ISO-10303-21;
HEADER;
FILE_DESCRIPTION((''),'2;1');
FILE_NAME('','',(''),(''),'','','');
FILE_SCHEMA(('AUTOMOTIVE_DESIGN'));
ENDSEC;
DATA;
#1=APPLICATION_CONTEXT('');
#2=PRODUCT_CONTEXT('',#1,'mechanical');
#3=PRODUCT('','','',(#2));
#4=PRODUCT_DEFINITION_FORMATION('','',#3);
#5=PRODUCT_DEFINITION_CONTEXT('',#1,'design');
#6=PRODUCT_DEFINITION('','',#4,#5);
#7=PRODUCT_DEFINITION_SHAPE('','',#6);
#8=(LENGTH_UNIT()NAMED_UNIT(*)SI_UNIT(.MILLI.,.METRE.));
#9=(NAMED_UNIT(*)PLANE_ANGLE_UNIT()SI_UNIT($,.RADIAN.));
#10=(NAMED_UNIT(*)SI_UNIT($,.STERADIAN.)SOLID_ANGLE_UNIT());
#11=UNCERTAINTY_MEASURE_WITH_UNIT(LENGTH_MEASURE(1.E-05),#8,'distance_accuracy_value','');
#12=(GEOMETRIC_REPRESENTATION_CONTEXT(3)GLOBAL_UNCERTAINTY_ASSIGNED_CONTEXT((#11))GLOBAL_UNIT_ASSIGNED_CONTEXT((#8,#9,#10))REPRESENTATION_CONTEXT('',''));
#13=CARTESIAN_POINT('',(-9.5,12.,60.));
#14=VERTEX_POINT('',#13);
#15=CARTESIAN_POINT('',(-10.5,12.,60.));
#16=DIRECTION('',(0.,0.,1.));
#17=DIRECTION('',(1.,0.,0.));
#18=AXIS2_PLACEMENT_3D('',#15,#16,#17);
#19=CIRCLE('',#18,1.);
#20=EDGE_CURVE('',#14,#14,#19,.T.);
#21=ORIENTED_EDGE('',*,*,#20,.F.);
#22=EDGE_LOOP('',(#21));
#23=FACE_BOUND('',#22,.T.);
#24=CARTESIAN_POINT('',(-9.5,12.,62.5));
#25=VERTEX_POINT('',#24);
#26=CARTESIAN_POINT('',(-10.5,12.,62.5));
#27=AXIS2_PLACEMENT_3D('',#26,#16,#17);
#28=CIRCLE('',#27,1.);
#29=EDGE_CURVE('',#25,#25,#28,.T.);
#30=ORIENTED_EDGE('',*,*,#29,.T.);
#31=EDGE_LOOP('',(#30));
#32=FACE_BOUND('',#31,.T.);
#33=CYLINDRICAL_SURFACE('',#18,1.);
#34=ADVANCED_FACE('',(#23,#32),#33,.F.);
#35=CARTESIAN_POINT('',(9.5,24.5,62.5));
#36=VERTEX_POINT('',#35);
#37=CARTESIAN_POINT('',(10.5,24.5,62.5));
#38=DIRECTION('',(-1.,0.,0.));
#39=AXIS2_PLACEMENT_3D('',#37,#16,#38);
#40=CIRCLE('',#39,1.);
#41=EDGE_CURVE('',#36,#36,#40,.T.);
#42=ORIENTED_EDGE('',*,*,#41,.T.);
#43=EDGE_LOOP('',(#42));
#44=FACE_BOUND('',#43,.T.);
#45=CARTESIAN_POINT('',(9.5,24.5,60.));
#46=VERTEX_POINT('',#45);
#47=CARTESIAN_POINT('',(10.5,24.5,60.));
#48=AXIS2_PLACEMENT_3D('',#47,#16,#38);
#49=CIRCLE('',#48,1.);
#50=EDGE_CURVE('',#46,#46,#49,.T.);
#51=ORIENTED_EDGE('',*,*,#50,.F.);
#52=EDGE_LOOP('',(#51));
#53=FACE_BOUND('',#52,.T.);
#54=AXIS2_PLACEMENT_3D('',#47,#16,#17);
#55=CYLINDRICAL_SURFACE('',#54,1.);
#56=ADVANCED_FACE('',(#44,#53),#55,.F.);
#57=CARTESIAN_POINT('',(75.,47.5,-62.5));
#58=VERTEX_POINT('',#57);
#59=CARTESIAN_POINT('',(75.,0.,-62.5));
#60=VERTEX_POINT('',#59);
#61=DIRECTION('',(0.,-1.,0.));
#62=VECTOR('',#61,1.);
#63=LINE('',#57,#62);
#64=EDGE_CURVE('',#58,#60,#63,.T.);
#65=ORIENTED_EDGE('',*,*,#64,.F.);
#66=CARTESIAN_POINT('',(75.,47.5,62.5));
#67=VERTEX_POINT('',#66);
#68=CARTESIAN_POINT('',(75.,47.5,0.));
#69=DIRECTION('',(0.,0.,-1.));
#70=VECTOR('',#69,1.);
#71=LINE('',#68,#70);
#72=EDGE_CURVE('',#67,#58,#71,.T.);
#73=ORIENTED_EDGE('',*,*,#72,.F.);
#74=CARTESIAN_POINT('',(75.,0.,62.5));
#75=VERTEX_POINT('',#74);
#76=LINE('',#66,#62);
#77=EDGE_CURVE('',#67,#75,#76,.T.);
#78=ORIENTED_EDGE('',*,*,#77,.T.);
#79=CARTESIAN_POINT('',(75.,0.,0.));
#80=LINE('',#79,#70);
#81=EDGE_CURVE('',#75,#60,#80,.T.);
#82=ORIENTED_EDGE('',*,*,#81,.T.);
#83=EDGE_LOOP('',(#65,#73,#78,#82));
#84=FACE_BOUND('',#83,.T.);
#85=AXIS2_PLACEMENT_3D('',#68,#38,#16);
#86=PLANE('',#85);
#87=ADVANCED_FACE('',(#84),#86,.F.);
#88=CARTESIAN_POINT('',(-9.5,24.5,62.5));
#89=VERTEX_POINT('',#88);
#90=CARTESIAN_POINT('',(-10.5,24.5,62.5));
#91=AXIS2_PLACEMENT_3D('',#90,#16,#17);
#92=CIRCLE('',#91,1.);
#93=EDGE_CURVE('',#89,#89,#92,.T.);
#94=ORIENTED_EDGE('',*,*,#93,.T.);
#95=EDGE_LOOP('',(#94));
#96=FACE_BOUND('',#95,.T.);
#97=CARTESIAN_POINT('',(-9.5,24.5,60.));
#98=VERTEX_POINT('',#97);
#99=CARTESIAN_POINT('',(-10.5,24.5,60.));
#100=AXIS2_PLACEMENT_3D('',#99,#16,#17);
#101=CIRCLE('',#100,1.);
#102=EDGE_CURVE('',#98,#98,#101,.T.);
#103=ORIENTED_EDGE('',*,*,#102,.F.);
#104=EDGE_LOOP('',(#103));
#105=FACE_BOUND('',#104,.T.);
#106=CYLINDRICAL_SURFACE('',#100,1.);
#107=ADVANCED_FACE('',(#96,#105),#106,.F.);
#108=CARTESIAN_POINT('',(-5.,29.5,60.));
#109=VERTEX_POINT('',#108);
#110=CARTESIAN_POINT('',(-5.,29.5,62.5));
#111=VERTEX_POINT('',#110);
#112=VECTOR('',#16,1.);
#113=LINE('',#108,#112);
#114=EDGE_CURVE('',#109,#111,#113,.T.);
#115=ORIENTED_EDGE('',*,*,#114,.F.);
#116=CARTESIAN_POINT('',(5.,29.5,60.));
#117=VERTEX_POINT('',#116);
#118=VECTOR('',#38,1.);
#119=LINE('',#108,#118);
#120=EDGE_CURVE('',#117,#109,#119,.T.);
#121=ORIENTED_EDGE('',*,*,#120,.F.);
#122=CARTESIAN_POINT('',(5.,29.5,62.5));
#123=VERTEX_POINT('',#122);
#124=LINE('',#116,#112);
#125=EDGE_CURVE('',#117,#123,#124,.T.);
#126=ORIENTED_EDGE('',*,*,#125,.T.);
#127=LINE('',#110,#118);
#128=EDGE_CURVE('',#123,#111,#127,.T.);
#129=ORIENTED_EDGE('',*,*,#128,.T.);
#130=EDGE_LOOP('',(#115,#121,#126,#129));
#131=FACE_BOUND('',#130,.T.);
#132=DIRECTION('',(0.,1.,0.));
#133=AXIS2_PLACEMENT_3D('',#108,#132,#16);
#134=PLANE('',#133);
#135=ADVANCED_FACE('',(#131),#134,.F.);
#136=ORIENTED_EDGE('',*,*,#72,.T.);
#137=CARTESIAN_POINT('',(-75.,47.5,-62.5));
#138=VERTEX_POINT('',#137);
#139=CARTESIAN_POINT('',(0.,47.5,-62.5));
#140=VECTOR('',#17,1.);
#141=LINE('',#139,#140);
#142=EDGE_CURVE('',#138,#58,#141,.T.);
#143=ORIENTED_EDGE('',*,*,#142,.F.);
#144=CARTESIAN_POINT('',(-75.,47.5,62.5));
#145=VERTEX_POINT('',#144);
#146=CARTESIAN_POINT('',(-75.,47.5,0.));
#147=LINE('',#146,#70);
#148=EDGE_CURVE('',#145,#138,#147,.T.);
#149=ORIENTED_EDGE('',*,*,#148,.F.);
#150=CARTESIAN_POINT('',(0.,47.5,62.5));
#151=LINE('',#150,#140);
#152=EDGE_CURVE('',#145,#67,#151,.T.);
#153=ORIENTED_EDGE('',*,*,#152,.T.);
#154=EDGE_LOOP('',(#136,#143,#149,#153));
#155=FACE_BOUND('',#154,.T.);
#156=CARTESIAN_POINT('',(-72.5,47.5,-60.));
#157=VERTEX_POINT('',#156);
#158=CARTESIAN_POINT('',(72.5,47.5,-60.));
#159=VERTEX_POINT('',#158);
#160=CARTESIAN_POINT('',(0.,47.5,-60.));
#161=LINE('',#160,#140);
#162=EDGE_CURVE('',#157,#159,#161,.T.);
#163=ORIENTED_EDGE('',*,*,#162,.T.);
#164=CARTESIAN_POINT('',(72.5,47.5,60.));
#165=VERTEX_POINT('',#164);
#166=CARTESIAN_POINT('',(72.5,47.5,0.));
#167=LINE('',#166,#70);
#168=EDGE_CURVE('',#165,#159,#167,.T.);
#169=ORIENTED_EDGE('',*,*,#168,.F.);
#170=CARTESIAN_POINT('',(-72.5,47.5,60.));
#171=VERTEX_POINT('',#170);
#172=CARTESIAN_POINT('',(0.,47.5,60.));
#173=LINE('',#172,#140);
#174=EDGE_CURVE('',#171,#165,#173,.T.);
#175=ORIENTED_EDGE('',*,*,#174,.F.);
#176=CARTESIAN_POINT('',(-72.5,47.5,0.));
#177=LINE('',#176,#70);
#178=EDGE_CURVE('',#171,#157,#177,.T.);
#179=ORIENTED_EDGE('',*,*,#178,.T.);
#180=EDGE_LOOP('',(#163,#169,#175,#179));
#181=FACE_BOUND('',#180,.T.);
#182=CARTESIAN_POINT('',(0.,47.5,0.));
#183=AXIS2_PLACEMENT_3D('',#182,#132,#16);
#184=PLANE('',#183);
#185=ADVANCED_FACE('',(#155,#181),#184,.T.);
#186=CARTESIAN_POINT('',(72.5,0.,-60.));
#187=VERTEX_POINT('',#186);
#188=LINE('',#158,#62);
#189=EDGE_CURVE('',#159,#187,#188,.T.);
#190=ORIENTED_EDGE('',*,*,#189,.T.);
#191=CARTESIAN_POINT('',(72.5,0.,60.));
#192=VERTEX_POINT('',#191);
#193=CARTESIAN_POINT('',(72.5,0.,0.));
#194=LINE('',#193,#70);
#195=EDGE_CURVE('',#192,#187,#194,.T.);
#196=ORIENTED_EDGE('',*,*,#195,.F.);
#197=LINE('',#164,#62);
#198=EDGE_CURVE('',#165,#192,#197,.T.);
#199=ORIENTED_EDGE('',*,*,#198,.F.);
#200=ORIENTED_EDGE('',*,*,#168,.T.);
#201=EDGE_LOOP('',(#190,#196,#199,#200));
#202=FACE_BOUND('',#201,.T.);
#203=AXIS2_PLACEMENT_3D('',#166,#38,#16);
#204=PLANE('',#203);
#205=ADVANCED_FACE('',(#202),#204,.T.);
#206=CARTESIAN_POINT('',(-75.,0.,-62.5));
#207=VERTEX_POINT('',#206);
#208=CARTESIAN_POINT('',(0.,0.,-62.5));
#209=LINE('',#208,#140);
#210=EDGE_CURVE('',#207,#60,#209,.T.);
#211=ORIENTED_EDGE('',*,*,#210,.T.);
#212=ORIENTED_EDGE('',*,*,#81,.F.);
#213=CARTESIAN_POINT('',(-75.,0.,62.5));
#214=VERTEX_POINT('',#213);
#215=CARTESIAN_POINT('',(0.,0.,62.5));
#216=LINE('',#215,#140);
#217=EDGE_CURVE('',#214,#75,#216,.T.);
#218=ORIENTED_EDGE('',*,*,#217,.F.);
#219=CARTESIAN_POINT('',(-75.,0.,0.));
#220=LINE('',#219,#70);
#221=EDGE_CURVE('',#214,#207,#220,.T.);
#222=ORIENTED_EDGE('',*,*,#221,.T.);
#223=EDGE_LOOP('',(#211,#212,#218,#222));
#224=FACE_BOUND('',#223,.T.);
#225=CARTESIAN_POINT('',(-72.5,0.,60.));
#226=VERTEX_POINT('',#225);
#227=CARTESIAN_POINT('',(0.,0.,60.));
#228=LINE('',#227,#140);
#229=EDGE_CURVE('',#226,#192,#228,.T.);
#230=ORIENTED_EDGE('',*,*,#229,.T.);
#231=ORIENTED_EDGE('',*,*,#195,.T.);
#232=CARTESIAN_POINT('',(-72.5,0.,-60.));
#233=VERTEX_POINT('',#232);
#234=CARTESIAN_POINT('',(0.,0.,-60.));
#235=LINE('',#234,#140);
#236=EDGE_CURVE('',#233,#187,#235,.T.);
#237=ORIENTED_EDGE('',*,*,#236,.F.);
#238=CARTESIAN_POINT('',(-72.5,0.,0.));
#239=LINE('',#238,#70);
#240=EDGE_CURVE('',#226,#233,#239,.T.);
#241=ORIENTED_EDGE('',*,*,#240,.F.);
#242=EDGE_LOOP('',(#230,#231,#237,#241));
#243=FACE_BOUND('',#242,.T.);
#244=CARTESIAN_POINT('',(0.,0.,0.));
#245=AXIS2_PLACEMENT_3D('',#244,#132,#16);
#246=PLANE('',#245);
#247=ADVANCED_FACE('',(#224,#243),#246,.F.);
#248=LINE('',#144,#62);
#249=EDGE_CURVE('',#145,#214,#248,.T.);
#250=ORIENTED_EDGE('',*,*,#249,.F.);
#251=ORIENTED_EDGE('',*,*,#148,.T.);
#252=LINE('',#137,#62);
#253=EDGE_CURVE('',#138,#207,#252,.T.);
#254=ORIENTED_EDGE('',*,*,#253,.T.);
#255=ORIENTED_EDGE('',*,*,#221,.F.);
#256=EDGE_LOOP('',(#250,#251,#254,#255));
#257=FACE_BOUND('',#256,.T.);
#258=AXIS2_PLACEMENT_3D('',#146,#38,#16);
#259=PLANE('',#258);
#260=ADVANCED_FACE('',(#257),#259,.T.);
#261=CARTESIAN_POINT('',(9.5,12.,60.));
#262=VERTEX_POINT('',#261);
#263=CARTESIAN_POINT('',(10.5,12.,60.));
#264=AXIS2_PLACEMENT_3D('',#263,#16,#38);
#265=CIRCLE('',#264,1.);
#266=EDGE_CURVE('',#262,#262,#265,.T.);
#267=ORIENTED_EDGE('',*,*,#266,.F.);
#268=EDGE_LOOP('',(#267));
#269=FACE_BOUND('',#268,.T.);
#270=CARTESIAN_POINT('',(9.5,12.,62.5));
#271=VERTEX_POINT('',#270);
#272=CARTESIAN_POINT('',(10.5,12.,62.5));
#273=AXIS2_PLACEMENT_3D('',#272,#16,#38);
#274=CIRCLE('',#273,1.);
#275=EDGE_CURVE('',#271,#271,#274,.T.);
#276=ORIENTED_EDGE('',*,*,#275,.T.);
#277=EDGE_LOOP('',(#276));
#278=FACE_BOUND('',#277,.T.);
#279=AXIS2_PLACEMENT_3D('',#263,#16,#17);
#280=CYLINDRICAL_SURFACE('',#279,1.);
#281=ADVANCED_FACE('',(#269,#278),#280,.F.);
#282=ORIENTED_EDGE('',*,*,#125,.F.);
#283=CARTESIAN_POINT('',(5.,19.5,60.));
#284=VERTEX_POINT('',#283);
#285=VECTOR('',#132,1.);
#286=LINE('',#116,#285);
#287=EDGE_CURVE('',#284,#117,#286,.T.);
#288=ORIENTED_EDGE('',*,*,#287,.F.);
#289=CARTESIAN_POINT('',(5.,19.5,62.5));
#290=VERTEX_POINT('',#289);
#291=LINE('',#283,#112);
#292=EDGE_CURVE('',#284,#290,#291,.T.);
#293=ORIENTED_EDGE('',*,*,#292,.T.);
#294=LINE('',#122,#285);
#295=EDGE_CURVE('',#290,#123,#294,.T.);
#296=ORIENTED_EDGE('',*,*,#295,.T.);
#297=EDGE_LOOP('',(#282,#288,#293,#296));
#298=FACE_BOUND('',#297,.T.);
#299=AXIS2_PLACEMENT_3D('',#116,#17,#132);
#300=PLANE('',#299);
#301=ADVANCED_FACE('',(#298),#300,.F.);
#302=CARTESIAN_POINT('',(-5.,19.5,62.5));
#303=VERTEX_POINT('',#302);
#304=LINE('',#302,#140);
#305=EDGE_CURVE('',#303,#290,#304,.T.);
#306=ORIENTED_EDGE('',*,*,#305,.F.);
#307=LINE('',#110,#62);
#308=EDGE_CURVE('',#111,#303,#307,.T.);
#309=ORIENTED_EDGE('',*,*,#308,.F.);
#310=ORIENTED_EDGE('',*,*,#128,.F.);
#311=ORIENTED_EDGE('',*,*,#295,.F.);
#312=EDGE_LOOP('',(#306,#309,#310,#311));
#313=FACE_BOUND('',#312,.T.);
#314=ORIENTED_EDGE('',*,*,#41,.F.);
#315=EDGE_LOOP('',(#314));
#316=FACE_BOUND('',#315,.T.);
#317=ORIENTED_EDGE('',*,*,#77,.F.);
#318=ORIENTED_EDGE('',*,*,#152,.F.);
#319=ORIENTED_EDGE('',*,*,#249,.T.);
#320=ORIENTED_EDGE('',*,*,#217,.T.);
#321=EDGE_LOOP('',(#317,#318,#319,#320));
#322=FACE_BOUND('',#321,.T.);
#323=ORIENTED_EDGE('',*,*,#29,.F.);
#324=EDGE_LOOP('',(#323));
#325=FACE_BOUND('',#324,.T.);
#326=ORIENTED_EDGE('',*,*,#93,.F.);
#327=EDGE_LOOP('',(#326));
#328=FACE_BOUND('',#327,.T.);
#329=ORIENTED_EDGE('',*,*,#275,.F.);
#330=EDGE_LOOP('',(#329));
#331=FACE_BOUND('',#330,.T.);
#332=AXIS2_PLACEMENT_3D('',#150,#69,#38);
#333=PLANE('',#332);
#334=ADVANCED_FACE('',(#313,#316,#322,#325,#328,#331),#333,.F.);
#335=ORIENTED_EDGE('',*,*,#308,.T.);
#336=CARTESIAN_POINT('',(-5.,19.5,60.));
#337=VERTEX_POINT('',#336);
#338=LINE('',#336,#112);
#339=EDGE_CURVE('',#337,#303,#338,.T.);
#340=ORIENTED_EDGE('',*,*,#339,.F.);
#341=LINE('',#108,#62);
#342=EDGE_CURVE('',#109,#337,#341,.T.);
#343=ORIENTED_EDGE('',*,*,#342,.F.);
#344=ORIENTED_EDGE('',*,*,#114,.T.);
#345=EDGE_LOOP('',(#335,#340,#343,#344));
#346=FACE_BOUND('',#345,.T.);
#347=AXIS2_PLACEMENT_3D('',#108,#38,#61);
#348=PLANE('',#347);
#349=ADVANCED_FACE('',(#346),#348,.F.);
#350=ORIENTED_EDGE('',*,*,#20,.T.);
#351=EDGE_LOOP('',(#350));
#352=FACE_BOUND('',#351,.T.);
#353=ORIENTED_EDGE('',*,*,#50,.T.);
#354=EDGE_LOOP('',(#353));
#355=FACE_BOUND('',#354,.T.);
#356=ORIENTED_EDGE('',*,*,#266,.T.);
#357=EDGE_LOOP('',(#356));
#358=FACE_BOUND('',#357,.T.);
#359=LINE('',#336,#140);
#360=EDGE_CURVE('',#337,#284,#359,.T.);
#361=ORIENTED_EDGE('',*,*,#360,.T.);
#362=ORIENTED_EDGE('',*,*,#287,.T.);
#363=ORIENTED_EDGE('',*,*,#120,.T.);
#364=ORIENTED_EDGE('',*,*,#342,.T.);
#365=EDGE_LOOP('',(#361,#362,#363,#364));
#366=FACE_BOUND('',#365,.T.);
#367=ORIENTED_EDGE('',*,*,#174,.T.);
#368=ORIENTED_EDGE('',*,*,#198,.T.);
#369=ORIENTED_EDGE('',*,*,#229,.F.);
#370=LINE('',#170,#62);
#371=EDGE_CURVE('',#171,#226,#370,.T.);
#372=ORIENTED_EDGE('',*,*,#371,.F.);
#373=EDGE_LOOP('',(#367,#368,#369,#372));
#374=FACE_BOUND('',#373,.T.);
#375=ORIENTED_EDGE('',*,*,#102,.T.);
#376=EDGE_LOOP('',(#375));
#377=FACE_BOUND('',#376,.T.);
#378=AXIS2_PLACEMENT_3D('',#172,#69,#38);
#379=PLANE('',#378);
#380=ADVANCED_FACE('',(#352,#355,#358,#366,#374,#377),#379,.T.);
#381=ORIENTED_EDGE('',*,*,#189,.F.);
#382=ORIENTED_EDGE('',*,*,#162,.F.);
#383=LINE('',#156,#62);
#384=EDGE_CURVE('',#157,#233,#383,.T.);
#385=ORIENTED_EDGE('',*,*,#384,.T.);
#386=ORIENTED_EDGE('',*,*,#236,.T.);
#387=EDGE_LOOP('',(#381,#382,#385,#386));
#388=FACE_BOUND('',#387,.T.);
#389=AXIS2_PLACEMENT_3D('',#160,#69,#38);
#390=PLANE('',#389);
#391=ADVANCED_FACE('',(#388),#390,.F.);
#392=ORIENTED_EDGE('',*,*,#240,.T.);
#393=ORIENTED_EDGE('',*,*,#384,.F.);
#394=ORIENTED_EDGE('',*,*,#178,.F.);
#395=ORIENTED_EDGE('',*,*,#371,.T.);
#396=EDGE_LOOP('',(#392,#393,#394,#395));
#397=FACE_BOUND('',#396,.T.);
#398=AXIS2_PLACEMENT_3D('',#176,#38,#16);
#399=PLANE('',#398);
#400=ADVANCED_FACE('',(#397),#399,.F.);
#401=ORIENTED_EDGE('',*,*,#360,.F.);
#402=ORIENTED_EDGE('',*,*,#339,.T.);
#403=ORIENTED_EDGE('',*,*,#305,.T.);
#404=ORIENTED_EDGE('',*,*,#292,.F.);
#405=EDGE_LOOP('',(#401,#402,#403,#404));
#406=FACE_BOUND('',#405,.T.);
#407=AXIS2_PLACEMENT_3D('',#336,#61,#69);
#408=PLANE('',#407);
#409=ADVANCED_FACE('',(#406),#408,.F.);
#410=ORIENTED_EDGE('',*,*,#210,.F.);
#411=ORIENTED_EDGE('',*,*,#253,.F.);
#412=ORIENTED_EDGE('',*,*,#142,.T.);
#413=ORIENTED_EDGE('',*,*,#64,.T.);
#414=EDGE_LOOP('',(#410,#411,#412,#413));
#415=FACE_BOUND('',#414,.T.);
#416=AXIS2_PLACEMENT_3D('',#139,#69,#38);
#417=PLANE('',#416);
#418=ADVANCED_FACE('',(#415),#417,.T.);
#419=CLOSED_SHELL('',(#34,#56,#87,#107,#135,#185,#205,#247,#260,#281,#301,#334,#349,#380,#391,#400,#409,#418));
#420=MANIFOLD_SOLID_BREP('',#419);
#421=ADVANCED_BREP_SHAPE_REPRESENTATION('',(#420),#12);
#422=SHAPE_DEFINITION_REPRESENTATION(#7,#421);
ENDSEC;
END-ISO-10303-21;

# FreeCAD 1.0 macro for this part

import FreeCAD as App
import Part
import Sketcher
from FreeCAD import Vector


def faces_at(feature, points):
    """Names of the faces that lie closest to the given points."""
    faces = feature.Shape.Faces
    near = lambda p: min(range(len(faces)), key=lambda i: faces[i].distToShape(Part.Vertex(*p))[0])
    return sorted({f"Face{near(p) + 1}" for p in points})

doc = App.newDocument("Part")
params = doc.addObject("Spreadsheet::Sheet", "Params")
for row, (alias, value) in enumerate([
    ("sketch1_width", "150 mm"),
    ("sketch1_height", "125 mm"),
    ("pad1_length", "47.5 mm"),
    ("thickness_wall", "2.5 mm"),
    ("sketch2_diameter", "2 mm"),
    ("sketch2_width", "10 mm"),
    ("pocket1_length", "2.5 mm"),
], start=1):
    params.set(f"A{row}", alias)
    params.set(f"B{row}", "=" + value)
    params.setAlias(f"B{row}", alias)

body = doc.addObject("PartDesign::Body", "Body")

sketch1 = body.newObject("Sketcher::SketchObject", "Sketch")
sketch1.AttachmentSupport = (doc.getObject("XZ_Plane"), [""])
sketch1.MapMode = "FlatFace"
sketch1.addGeometry([
    Part.LineSegment(Vector(-75, -62, 0), Vector(-75, 62, 0)),
    Part.LineSegment(Vector(-75, 62, 0), Vector(75, 62, 0)),
    Part.LineSegment(Vector(75, 62, 0), Vector(75, -62, 0)),
    Part.LineSegment(Vector(75, -62, 0), Vector(-75, -62, 0)),
], False)
sketch1.addConstraint([
    Sketcher.Constraint("Coincident", 0, 2, 1, 1),
    Sketcher.Constraint("Coincident", 1, 2, 2, 1),
    Sketcher.Constraint("Coincident", 2, 2, 3, 1),
    Sketcher.Constraint("Coincident", 3, 2, 0, 1),
    Sketcher.Constraint("Vertical", 0),
    Sketcher.Constraint("Horizontal", 1),
    Sketcher.Constraint("Vertical", 2),
    Sketcher.Constraint("Horizontal", 3),
    Sketcher.Constraint("Symmetric", 0, 2, 2, 2, -1, 1),
    Sketcher.Constraint("DistanceX", 1, 1, 1, 2, 150.0),
    Sketcher.Constraint("DistanceY", 0, 1, 0, 2, 125.0),
])
sketch1.setExpression("Constraints[9]", "Params.sketch1_width")
sketch1.setExpression("Constraints[10]", "Params.sketch1_height")
pad1 = body.newObject("PartDesign::Pad", "Pad")
pad1.Profile = sketch1
pad1.setExpression("Length", "Params.pad1_length")
pad1.Reversed = True
doc.recompute()

thickness = body.newObject("PartDesign::Thickness", "Thickness")
thickness.Base = (pad1, faces_at(pad1, [(0, 47.5, 0), (0, 0, 0)]))
thickness.setExpression("Value", "Params.thickness_wall")
thickness.Reversed = True
thickness.Join = "Intersection"

sketch2 = body.newObject("Sketcher::SketchObject", "Sketch001")
sketch2.AttachmentSupport = (doc.getObject("XY_Plane"), [""])
sketch2.MapMode = "FlatFace"
sketch2.AttachmentOffset = App.Placement(Vector(0, 0, 62.5), App.Rotation())
sketch2.addGeometry([
    Part.Circle(Vector(-10.5, 12, 0), Vector(0, 0, 1), 1),
    Part.Circle(Vector(-10.5, 24.5, 0), Vector(0, 0, 1), 1),
    Part.Circle(Vector(10.5, 12, 0), Vector(0, 0, 1), 1),
    Part.Circle(Vector(10.5, 24.5, 0), Vector(0, 0, 1), 1),
    Part.LineSegment(Vector(-5, 29.5, 0), Vector(-5, 19.5, 0)),
    Part.LineSegment(Vector(-5, 19.5, 0), Vector(5, 19.5, 0)),
    Part.LineSegment(Vector(5, 19.5, 0), Vector(5, 29.5, 0)),
    Part.LineSegment(Vector(5, 29.5, 0), Vector(-5, 29.5, 0)),
], False)
sketch2.addConstraint([
    Sketcher.Constraint("Coincident", 4, 2, 5, 1),
    Sketcher.Constraint("Coincident", 5, 2, 6, 1),
    Sketcher.Constraint("Coincident", 6, 2, 7, 1),
    Sketcher.Constraint("Coincident", 7, 2, 4, 1),
    Sketcher.Constraint("Vertical", 4),
    Sketcher.Constraint("Horizontal", 5),
    Sketcher.Constraint("Vertical", 6),
    Sketcher.Constraint("Horizontal", 7),
    Sketcher.Constraint("Equal", 0, 1),
    Sketcher.Constraint("Equal", 1, 2),
    Sketcher.Constraint("Equal", 2, 3),
    Sketcher.Constraint("Symmetric", 0, 3, 2, 3, -2),
    Sketcher.Constraint("Symmetric", 1, 3, 3, 3, -2),
    Sketcher.Constraint("Vertical", 0, 3, 1, 3),
    Sketcher.Constraint("Equal", 7, 4),
    Sketcher.Constraint("Diameter", 0, 2.0),
    Sketcher.Constraint("DistanceX", 5, 1, 5, 2, 10.0),
    Sketcher.Constraint("DistanceY", -1, 1, 0, 3, 12.0),
    Sketcher.Constraint("DistanceX", 4, 2, -1, 1, 5.0),
    Sketcher.Constraint("DistanceX", 0, 3, 2, 3, 21.0),
    Sketcher.Constraint("DistanceY", 4, 2, 1, 3, 5.0),
    Sketcher.Constraint("DistanceY", -1, 1, 1, 3, 24.5),
])
sketch2.setExpression("Constraints[15]", "Params.sketch2_diameter")
sketch2.setExpression("Constraints[16]", "Params.sketch2_width")
pocket1 = body.newObject("PartDesign::Pocket", "Pocket")
pocket1.Profile = sketch2
pocket1.setExpression("Length", "Params.pocket1_length")

doc.recompute()
